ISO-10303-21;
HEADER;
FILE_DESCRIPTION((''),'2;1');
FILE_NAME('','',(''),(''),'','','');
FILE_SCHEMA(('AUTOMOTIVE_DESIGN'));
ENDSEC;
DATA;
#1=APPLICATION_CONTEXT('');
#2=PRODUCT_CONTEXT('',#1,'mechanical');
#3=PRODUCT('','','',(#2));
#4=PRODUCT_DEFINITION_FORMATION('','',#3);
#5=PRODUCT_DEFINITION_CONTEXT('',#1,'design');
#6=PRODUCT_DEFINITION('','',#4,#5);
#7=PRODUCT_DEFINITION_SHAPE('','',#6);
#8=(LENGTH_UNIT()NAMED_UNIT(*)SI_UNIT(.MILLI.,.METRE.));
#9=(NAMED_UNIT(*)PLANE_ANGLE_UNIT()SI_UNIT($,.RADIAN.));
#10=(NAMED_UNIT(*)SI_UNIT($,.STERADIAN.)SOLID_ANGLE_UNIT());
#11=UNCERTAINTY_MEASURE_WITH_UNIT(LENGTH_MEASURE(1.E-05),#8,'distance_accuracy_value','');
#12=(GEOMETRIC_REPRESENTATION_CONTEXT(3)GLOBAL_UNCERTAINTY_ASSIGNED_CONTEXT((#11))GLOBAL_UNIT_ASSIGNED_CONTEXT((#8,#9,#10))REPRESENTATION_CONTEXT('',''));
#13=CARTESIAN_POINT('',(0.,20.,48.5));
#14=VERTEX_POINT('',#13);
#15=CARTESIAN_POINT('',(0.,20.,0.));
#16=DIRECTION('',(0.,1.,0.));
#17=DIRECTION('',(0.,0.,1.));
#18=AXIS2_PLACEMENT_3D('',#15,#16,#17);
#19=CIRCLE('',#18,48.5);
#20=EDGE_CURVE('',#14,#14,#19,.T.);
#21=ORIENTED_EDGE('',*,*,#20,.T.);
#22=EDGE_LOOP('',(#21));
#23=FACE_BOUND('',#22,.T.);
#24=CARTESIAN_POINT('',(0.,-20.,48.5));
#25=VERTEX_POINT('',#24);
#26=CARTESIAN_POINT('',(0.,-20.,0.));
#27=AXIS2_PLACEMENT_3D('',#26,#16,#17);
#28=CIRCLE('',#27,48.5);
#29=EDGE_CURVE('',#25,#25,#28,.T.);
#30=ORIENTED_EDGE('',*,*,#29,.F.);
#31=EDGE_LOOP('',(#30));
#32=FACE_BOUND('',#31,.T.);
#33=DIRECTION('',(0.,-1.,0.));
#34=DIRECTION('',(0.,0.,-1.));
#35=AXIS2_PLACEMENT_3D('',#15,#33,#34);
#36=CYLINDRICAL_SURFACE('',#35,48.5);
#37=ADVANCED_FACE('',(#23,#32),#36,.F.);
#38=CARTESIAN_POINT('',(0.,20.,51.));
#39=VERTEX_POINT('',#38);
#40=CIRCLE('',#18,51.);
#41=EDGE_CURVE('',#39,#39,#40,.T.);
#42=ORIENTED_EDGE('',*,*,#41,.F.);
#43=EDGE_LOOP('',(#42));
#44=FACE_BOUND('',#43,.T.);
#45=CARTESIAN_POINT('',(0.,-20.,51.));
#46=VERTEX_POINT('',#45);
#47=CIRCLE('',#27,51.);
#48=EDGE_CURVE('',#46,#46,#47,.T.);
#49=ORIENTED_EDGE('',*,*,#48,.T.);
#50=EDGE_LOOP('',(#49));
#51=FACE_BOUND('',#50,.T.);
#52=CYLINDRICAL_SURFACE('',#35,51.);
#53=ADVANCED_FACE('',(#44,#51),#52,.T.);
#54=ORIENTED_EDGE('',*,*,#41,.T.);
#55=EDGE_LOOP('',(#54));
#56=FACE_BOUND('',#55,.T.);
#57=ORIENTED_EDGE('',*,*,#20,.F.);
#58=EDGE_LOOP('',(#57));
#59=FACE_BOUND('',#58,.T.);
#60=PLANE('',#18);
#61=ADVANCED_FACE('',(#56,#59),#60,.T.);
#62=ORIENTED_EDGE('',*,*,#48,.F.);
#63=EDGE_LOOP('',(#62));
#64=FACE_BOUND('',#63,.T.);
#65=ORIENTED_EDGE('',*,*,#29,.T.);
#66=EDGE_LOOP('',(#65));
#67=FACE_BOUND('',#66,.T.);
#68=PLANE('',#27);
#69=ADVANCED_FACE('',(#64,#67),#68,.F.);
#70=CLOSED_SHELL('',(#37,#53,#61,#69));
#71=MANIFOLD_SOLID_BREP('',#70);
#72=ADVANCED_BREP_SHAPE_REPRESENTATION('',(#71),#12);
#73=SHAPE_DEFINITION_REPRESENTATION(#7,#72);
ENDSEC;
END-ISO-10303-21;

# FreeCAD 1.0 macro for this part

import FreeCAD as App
import Part
import Sketcher

V = App.Vector

doc = App.newDocument("Part")
body = doc.addObject("PartDesign::Body", "Body")

sketch1 = doc.addObject("Sketcher::SketchObject", "Sketch")
body.addObject(sketch1)
sketch1.AttachmentSupport = (doc.XZ_Plane, [""])
sketch1.MapMode = "FlatFace"
sketch1.addGeometry(Part.Circle(V(0, 0, 0), V(0, 0, 1), 51), False)
sketch1.addGeometry(Part.Circle(V(0, 0, 0), V(0, 0, 1), 48), False)
sketch1.addConstraint(Sketcher.Constraint("Coincident", 0, 3, -1, 1))
sketch1.addConstraint(Sketcher.Constraint("Coincident", 1, 3, -1, 1))
sketch1.addConstraint(Sketcher.Constraint("Diameter", 0, 102.0))
sketch1.addConstraint(Sketcher.Constraint("Diameter", 1, 97.0))
pad1 = doc.addObject("PartDesign::Pad", "Pad")
body.addObject(pad1)
pad1.Profile = sketch1
pad1.Length = 40
pad1.Midplane = True

doc.recompute()
